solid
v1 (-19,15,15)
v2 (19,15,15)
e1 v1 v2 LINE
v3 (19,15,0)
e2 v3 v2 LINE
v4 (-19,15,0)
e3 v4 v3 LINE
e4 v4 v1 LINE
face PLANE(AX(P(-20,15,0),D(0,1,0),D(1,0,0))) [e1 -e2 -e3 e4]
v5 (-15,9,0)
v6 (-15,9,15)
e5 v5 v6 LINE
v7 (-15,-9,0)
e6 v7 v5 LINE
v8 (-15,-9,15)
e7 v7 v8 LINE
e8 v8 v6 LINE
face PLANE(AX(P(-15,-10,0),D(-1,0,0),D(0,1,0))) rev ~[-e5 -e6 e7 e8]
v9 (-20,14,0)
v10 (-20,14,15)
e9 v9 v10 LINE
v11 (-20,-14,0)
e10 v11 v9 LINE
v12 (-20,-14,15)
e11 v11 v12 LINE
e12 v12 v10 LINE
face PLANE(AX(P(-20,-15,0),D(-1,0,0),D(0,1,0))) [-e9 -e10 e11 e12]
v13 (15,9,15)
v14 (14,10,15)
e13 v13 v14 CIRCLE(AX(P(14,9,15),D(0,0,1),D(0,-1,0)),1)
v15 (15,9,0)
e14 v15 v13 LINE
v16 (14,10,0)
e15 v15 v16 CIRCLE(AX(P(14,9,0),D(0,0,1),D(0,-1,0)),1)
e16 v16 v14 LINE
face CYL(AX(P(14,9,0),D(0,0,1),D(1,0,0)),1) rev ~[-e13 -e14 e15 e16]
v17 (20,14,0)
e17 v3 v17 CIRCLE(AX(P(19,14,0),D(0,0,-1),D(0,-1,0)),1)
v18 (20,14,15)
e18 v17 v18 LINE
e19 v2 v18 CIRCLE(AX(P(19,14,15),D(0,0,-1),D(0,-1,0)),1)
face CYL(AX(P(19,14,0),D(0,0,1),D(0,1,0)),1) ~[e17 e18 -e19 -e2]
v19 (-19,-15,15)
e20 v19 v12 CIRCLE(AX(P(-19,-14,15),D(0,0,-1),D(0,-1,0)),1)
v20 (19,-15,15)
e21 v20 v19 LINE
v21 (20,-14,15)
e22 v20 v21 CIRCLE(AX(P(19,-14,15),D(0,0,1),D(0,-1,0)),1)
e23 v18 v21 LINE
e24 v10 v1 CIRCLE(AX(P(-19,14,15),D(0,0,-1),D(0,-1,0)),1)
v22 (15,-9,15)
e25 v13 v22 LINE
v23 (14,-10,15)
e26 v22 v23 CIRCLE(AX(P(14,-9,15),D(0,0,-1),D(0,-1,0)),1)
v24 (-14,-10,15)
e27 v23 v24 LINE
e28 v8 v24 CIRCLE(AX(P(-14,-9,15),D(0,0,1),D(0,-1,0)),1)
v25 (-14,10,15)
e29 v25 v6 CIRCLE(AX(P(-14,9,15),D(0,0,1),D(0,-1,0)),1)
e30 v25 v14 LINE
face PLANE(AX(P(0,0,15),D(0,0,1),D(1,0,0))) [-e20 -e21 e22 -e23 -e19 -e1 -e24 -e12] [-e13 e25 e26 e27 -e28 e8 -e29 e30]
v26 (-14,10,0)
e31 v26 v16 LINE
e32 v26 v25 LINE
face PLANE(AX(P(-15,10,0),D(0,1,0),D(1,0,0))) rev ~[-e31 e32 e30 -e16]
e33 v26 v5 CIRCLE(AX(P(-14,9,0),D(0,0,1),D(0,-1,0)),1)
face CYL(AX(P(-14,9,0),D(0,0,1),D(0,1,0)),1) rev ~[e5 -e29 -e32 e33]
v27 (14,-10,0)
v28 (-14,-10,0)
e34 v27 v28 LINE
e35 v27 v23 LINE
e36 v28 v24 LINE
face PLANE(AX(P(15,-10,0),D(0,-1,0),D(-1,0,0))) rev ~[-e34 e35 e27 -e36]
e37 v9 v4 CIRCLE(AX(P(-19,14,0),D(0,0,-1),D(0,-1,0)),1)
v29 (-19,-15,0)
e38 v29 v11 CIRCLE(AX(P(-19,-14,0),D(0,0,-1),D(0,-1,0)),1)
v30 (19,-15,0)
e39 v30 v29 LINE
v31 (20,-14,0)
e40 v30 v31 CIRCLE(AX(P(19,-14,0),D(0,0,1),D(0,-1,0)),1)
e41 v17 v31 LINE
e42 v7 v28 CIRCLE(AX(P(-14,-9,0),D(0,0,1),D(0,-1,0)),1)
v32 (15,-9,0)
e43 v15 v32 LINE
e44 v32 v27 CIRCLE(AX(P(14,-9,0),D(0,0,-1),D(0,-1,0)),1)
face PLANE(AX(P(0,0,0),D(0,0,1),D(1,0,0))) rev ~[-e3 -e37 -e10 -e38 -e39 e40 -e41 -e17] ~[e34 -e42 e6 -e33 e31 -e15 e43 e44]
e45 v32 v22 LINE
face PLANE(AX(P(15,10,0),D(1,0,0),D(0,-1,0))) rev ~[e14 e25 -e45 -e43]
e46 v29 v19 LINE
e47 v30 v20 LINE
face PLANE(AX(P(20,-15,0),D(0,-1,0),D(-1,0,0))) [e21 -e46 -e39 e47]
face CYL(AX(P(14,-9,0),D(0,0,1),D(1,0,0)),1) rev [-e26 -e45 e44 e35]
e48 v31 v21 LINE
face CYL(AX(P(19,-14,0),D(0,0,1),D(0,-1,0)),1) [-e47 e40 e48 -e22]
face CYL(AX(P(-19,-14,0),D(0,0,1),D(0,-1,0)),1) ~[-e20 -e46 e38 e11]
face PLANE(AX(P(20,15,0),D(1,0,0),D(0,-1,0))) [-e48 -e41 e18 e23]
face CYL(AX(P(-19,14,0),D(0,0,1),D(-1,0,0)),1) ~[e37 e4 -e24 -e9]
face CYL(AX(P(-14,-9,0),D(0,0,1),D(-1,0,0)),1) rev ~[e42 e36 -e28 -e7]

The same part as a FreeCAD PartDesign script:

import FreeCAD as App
import Part
import Sketcher
from FreeCAD import Vector


def edges_at(feature, points):
    """Names of the edges that pass closest to the given points."""
    edges = feature.Shape.Edges
    near = lambda p: min(range(len(edges)), key=lambda i: edges[i].distToShape(Part.Vertex(*p))[0])
    return sorted({f"Edge{near(p) + 1}" for p in points})

doc = App.newDocument("Part")
body = doc.addObject("PartDesign::Body", "Body")

# Sketch on XY plane
sketch1 = doc.addObject("Sketcher::SketchObject", "Sketch")
body.addObject(sketch1)
sketch1.AttachmentSupport = (doc.XY_Plane, [""])
sketch1.MapMode = "FlatFace"
sketch1.addGeometry([
    Part.LineSegment(Vector(-20, -15, 0), Vector(20, -15, 0)),  # 0
    Part.LineSegment(Vector(20, -15, 0), Vector(20, 15, 0)),  # 1
    Part.LineSegment(Vector(20, 15, 0), Vector(-20, 15, 0)),  # 2
    Part.LineSegment(Vector(-20, 15, 0), Vector(-20, -15, 0)),  # 3
    Part.LineSegment(Vector(15, 10, 0), Vector(15, -10, 0)),  # 4
    Part.LineSegment(Vector(15, -10, 0), Vector(-15, -10, 0)),  # 5
    Part.LineSegment(Vector(-15, -10, 0), Vector(-15, 10, 0)),  # 6
    Part.LineSegment(Vector(-15, 10, 0), Vector(15, 10, 0)),  # 7
], False)
sketch1.addConstraint([
    Sketcher.Constraint("Coincident", 0, 2, 1, 1),
    Sketcher.Constraint("Coincident", 1, 2, 2, 1),
    Sketcher.Constraint("Coincident", 2, 2, 3, 1),
    Sketcher.Constraint("Coincident", 3, 2, 0, 1),
    Sketcher.Constraint("Coincident", 4, 2, 5, 1),
    Sketcher.Constraint("Coincident", 5, 2, 6, 1),
    Sketcher.Constraint("Coincident", 6, 2, 7, 1),
    Sketcher.Constraint("Coincident", 7, 2, 4, 1),
    Sketcher.Constraint("Horizontal", 0),
    Sketcher.Constraint("Vertical", 1),
    Sketcher.Constraint("Horizontal", 2),
    Sketcher.Constraint("Vertical", 3),
    Sketcher.Constraint("Vertical", 4),
    Sketcher.Constraint("Horizontal", 5),
    Sketcher.Constraint("Vertical", 6),
    Sketcher.Constraint("Horizontal", 7),
    Sketcher.Constraint("Symmetric", 0, 2, 2, 2, -1, 1),
    Sketcher.Constraint("Symmetric", 4, 2, 6, 2, -1, 1),
    Sketcher.Constraint("Equal", 7, 1),
    Sketcher.Constraint("DistanceX", 0, 1, 0, 2, 40.0),
    Sketcher.Constraint("DistanceX", 5, 2, 5, 1, 30.0),
    Sketcher.Constraint("DistanceY", 4, 2, 4, 1, 20.0),
])
pad1 = doc.addObject("PartDesign::Pad", "Pad")
body.addObject(pad1)
pad1.Profile = sketch1
pad1.Length = 15
doc.recompute()

fillet = doc.addObject("PartDesign::Fillet", "Fillet")
body.addObject(fillet)
fillet.Base = (pad1, edges_at(pad1, [
    (-15, -10, 7.5),
    (-15, 10, 7.5),
    (15, 10, 7.5),
    (15, -10, 7.5),
]))
fillet.Radius = 1
doc.recompute()

fillet2 = doc.addObject("PartDesign::Fillet", "Fillet001")
body.addObject(fillet2)
fillet2.Base = (fillet, edges_at(fillet, [
    (-20, 15, 7.5),
    (-20, -15, 7.5),
    (20, 15, 7.5),
    (20, -15, 7.5),
]))
fillet2.Radius = 1

doc.recompute()
